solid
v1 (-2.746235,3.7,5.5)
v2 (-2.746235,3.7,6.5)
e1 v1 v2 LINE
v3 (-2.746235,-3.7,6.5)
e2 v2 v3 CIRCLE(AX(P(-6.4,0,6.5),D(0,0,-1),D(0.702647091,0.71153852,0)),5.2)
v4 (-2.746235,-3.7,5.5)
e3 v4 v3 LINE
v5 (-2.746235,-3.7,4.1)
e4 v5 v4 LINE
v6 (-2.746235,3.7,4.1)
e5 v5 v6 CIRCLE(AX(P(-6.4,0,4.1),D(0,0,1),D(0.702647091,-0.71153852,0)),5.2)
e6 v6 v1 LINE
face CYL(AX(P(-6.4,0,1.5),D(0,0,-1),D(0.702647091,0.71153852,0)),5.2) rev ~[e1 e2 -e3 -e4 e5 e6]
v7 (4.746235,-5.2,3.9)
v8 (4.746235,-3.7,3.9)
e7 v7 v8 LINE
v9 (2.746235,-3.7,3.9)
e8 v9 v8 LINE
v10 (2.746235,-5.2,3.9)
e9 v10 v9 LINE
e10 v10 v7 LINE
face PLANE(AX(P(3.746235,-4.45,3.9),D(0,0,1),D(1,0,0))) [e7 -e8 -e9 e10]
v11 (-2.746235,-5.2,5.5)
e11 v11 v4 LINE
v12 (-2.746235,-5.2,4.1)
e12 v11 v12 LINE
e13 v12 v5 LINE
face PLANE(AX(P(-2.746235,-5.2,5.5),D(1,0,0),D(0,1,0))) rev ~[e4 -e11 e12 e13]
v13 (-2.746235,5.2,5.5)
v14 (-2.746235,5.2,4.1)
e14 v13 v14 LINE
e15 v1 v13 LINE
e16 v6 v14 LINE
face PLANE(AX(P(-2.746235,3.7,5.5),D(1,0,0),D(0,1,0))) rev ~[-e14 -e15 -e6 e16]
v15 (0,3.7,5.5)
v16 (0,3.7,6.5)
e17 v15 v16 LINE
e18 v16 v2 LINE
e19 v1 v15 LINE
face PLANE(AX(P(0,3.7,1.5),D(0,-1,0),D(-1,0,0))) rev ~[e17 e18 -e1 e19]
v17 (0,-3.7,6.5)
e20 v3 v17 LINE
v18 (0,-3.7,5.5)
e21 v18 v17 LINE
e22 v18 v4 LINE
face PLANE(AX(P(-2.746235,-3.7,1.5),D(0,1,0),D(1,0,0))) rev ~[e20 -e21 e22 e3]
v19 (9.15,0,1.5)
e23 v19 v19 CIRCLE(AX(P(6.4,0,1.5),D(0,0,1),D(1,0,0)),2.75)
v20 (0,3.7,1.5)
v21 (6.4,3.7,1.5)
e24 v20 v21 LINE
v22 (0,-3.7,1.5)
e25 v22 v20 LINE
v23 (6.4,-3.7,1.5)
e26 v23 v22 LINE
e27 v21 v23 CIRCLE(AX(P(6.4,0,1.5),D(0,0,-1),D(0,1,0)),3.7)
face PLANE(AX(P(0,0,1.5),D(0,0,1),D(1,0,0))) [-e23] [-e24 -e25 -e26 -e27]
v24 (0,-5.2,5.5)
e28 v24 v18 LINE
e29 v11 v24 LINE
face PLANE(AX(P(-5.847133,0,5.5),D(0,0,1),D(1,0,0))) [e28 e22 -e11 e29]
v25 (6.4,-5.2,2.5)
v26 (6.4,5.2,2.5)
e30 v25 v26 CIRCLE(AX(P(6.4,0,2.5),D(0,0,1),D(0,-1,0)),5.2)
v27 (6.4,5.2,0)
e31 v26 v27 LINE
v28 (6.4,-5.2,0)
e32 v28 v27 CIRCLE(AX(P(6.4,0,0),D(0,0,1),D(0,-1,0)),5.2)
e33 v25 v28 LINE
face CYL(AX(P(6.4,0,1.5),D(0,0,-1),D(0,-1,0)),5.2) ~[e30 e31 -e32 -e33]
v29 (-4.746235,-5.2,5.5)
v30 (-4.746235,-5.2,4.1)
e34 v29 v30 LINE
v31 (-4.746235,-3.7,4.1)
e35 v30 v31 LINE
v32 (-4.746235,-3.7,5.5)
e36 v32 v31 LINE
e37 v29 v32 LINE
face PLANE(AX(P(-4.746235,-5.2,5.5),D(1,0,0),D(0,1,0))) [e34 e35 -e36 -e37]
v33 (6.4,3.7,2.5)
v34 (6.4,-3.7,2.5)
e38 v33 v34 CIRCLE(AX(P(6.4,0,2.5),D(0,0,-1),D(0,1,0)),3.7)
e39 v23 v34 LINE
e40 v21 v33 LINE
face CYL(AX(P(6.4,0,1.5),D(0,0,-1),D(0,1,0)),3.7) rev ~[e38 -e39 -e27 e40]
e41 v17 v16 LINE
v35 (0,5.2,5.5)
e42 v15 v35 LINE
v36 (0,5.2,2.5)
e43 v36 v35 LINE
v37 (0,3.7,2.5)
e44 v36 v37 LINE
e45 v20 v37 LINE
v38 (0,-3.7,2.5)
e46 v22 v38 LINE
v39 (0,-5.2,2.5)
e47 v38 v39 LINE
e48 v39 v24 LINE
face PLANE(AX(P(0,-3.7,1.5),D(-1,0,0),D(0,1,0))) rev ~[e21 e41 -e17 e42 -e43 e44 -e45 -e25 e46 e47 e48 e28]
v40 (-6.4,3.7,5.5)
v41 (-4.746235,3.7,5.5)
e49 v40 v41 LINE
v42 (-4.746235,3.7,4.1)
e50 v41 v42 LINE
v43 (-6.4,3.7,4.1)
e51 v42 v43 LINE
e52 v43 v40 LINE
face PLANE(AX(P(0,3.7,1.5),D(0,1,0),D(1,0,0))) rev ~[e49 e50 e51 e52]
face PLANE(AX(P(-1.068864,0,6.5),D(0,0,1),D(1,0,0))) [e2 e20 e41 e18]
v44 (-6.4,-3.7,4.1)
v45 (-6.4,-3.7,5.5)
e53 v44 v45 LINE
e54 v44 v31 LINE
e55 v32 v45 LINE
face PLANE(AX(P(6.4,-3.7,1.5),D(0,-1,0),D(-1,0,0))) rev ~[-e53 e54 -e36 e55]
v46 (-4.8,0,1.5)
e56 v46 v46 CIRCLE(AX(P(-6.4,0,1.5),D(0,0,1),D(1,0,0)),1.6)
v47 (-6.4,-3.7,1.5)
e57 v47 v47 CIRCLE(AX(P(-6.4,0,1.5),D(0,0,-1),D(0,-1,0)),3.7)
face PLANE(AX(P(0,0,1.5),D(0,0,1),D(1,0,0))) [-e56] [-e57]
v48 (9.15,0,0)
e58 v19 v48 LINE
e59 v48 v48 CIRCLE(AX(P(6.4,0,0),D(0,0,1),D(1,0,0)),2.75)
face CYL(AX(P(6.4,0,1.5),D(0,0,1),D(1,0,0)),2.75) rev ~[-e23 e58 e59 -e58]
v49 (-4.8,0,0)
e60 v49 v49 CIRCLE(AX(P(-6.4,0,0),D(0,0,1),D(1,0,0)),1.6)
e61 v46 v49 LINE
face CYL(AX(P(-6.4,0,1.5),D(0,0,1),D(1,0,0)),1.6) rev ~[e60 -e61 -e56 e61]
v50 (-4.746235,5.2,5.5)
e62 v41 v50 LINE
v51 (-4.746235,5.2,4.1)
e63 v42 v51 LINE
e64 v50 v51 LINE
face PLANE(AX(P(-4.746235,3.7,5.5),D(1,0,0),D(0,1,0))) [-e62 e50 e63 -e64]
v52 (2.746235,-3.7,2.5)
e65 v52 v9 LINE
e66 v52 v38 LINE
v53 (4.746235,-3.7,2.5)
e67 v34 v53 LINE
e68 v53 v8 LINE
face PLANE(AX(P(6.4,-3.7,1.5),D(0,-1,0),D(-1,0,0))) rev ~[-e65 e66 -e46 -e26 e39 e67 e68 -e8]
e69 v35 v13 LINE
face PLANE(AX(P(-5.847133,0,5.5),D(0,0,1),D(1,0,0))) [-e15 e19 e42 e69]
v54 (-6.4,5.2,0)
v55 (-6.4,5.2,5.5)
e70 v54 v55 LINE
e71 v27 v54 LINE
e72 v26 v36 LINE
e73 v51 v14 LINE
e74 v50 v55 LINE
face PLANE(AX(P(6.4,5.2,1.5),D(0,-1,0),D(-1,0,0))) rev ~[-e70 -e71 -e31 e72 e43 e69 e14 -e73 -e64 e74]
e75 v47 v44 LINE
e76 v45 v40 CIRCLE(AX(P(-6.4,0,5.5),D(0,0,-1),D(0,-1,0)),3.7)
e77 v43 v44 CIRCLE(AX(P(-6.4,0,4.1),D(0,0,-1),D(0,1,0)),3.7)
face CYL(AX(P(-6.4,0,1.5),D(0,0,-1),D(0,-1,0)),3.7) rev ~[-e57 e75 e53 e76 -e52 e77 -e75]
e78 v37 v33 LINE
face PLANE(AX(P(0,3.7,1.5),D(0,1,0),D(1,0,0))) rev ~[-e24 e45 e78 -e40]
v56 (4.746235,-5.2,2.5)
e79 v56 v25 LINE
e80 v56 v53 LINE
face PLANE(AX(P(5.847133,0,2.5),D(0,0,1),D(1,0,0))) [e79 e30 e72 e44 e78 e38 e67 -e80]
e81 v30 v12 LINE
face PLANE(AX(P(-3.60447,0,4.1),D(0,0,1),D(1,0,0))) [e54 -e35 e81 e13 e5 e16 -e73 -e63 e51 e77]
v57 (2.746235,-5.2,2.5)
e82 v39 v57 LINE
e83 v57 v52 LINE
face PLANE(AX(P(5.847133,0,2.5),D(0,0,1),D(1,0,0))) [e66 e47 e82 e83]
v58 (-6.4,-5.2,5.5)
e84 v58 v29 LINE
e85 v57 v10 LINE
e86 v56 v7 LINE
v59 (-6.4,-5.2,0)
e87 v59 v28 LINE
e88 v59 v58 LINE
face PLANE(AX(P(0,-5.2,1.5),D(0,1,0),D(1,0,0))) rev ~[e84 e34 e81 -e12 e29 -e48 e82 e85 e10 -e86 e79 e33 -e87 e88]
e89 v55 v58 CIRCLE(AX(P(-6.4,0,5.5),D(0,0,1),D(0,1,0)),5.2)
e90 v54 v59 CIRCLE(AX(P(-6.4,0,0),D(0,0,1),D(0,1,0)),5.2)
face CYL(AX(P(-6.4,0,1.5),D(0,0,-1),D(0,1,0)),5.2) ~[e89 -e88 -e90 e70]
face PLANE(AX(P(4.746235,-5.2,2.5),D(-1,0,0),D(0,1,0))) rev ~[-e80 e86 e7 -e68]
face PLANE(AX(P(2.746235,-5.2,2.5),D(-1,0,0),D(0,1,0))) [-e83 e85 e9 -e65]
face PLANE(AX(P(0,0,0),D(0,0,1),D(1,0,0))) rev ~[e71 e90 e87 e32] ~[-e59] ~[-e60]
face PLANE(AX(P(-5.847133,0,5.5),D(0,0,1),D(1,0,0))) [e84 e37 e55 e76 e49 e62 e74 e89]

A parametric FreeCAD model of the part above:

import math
import FreeCAD as App
import Part
import Sketcher

V = App.Vector
Q = App.Units.Quantity

doc = App.newDocument("Part")
body = doc.addObject("PartDesign::Body", "Body")

# Sketch on XY plane
sketch1 = body.newObject("Sketcher::SketchObject", "Sketch")
sketch1.AttachmentSupport = (doc.getObject("XY_Plane"), [""])
sketch1.MapMode = "FlatFace"
sketch1.addGeometry(Part.LineSegment(V(6, 5, 0), V(-6, 5, 0)), False)
sketch1.addGeometry(Part.ArcOfCircle(Part.Circle(V(-6, 0, 0), V(0, 0, 1), 5), math.radians(90), math.radians(270)), False)
sketch1.addGeometry(Part.LineSegment(V(-6, -5, 0), V(6, -5, 0)), False)
sketch1.addGeometry(Part.ArcOfCircle(Part.Circle(V(6, 0, 0), V(0, 0, 1), 5), math.radians(-90), math.radians(90)), False)
sketch1.addConstraint(Sketcher.Constraint("Tangent", 0, 2, 1, 1))
sketch1.addConstraint(Sketcher.Constraint("Tangent", 1, 2, 2, 1))
sketch1.addConstraint(Sketcher.Constraint("Tangent", 2, 2, 3, 1))
sketch1.addConstraint(Sketcher.Constraint("Tangent", 3, 2, 0, 1))
sketch1.addConstraint(Sketcher.Constraint("Horizontal", 0))
sketch1.addConstraint(Sketcher.Constraint("Horizontal", 2))
sketch1.addConstraint(Sketcher.Constraint("Symmetric", 1, 3, 3, 3, -1, 1))
sketch1.addConstraint(Sketcher.Constraint("Radius", 1, Q("5.2 mm")))
sketch1.addConstraint(Sketcher.Constraint("DistanceX", 0, 2, 0, 1, Q("12.8 mm")))
pad1 = body.newObject("PartDesign::Pad", "Pad")
pad1.Profile = sketch1
pad1.Length = 1.5

# Sketch on XY plane
sketch2 = body.newObject("Sketcher::SketchObject", "Sketch001")
sketch2.AttachmentSupport = (doc.getObject("XY_Plane"), [""])
sketch2.MapMode = "FlatFace"
sketch2.AttachmentOffset = App.Placement(V(0, 0, 1.5), App.Rotation())
sketch2.addGeometry(Part.LineSegment(V(0, 5.2, 0), V(-6.4, 5.2, 0)), False)
sketch2.addGeometry(Part.ArcOfCircle(Part.Circle(V(-6.4, 0, 0), V(0, 0, 1), 5.2), math.radians(90), math.radians(270)), False)
sketch2.addGeometry(Part.LineSegment(V(-6.4, -5.2, 0), V(0, -5.2, 0)), False)
sketch2.addGeometry(Part.LineSegment(V(0, -5.2, 0), V(0, -3.7, 0)), False)
sketch2.addGeometry(Part.LineSegment(V(0, -3.7, 0), V(-6.4, -3.7, 0)), False)
sketch2.addGeometry(Part.ArcOfCircle(Part.Circle(V(-6.4, 0, 0), V(0, 0, 1), 3.7), math.radians(90), math.radians(270)), False)
sketch2.addGeometry(Part.LineSegment(V(-6.4, 3.7, 0), V(0, 3.7, 0)), False)
sketch2.addGeometry(Part.LineSegment(V(0, 3.7, 0), V(0, 5.2, 0)), False)
sketch2.addConstraint(Sketcher.Constraint("Tangent", 0, 2, 1, 1))
sketch2.addConstraint(Sketcher.Constraint("Tangent", 1, 2, 2, 1))
sketch2.addConstraint(Sketcher.Constraint("Coincident", 2, 2, 3, 1))
sketch2.addConstraint(Sketcher.Constraint("Coincident", 3, 2, 4, 1))
sketch2.addConstraint(Sketcher.Constraint("Tangent", 4, 2, 5, 2))
sketch2.addConstraint(Sketcher.Constraint("Tangent", 5, 1, 6, 1))
sketch2.addConstraint(Sketcher.Constraint("Coincident", 6, 2, 7, 1))
sketch2.addConstraint(Sketcher.Constraint("Coincident", 7, 2, 0, 1))
sketch2.addConstraint(Sketcher.Constraint("Horizontal", 0))
sketch2.addConstraint(Sketcher.Constraint("Horizontal", 2))
sketch2.addConstraint(Sketcher.Constraint("Vertical", 3))
sketch2.addConstraint(Sketcher.Constraint("Horizontal", 4))
sketch2.addConstraint(Sketcher.Constraint("Horizontal", 6))
sketch2.addConstraint(Sketcher.Constraint("Vertical", 7))
sketch2.addConstraint(Sketcher.Constraint("Coincident", 5, 3, 1, 3))
sketch2.addConstraint(Sketcher.Constraint("Symmetric", 3, 2, 6, 2, -1, 1))
sketch2.addConstraint(Sketcher.Constraint("PointOnObject", 2, 2, -2))
sketch2.addConstraint(Sketcher.Constraint("Radius", 1, Q("5.2 mm")))
sketch2.addConstraint(Sketcher.Constraint("Radius", 5, Q("3.7 mm")))
sketch2.addConstraint(Sketcher.Constraint("DistanceX", 0, 2, 0, 1, Q("6.4 mm")))
pad2 = body.newObject("PartDesign::Pad", "Pad001")
pad2.Profile = sketch2
pad2.Length = 4

# Sketch on XY plane
sketch3 = body.newObject("Sketcher::SketchObject", "Sketch002")
sketch3.AttachmentSupport = (doc.getObject("XY_Plane"), [""])
sketch3.MapMode = "FlatFace"
sketch3.AttachmentOffset = App.Placement(V(0, 0, 1.5), App.Rotation())
sketch3.addGeometry(Part.LineSegment(V(6.4, 5.2, 0), V(0, 5.2, 0)), False)
sketch3.addGeometry(Part.LineSegment(V(0, 5.2, 0), V(0, 3.7, 0)), False)
sketch3.addGeometry(Part.LineSegment(V(0, 3.7, 0), V(6.4, 3.7, 0)), False)
sketch3.addGeometry(Part.ArcOfCircle(Part.Circle(V(6.4, 0, 0), V(0, 0, 1), 3.7), math.radians(-90), math.radians(90)), False)
sketch3.addGeometry(Part.LineSegment(V(6.4, -3.7, 0), V(0, -3.7, 0)), False)
sketch3.addGeometry(Part.LineSegment(V(0, -3.7, 0), V(0, -5.2, 0)), False)
sketch3.addGeometry(Part.LineSegment(V(0, -5.2, 0), V(6.4, -5.2, 0)), False)
sketch3.addGeometry(Part.ArcOfCircle(Part.Circle(V(6.4, 0, 0), V(0, 0, 1), 5.2), math.radians(-90), math.radians(90)), False)
sketch3.addConstraint(Sketcher.Constraint("Coincident", 0, 2, 1, 1))
sketch3.addConstraint(Sketcher.Constraint("Coincident", 1, 2, 2, 1))
sketch3.addConstraint(Sketcher.Constraint("Tangent", 2, 2, 3, 2))
sketch3.addConstraint(Sketcher.Constraint("Tangent", 3, 1, 4, 1))
sketch3.addConstraint(Sketcher.Constraint("Coincident", 4, 2, 5, 1))
sketch3.addConstraint(Sketcher.Constraint("Coincident", 5, 2, 6, 1))
sketch3.addConstraint(Sketcher.Constraint("Tangent", 6, 2, 7, 1))
sketch3.addConstraint(Sketcher.Constraint("Tangent", 7, 2, 0, 1))
sketch3.addConstraint(Sketcher.Constraint("Horizontal", 0))
sketch3.addConstraint(Sketcher.Constraint("Vertical", 1))
sketch3.addConstraint(Sketcher.Constraint("Horizontal", 2))
sketch3.addConstraint(Sketcher.Constraint("Horizontal", 4))
sketch3.addConstraint(Sketcher.Constraint("Vertical", 5))
sketch3.addConstraint(Sketcher.Constraint("Horizontal", 6))
sketch3.addConstraint(Sketcher.Constraint("Coincident", 7, 3, 3, 3))
sketch3.addConstraint(Sketcher.Constraint("Symmetric", 1, 2, 4, 2, -1, 1))
sketch3.addConstraint(Sketcher.Constraint("PointOnObject", 0, 2, -2))
sketch3.addConstraint(Sketcher.Constraint("Radius", 3, Q("3.7 mm")))
sketch3.addConstraint(Sketcher.Constraint("Radius", 7, Q("5.2 mm")))
sketch3.addConstraint(Sketcher.Constraint("DistanceX", 0, 2, 0, 1, Q("6.4 mm")))
pad3 = body.newObject("PartDesign::Pad", "Pad002")
pad3.Profile = sketch3
pad3.Length = 1

# Sketch on XY plane
sketch4 = body.newObject("Sketcher::SketchObject", "Sketch003")
sketch4.AttachmentSupport = (doc.getObject("XY_Plane"), [""])
sketch4.MapMode = "FlatFace"
sketch4.AttachmentOffset = App.Placement(V(0, 0, 1.5), App.Rotation())
sketch4.addGeometry(Part.LineSegment(V(-6.4, -3.7, 0), V(-2.7, -3.7, 0)), False)
sketch4.addGeometry(Part.ArcOfCircle(Part.Circle(V(-6.4, 0, 0), V(0, 0, 1), 5.2), math.radians(-45), math.radians(45)), False)
sketch4.addGeometry(Part.LineSegment(V(-2.7, 3.7, 0), V(-6.4, 3.7, 0)), False)
sketch4.addGeometry(Part.ArcOfCircle(Part.Circle(V(-6.4, 0, 0), V(0, 0, 1), 3.7), math.radians(-90), math.radians(90)), False)
sketch4.addConstraint(Sketcher.Constraint("Coincident", 0, 2, 1, 1))
sketch4.addConstraint(Sketcher.Constraint("Coincident", 1, 2, 2, 1))
sketch4.addConstraint(Sketcher.Constraint("Tangent", 2, 2, 3, 2))
sketch4.addConstraint(Sketcher.Constraint("Tangent", 3, 1, 0, 1))
sketch4.addConstraint(Sketcher.Constraint("Horizontal", 0))
sketch4.addConstraint(Sketcher.Constraint("Horizontal", 2))
sketch4.addConstraint(Sketcher.Constraint("Coincident", 3, 3, 1, 3))
sketch4.addConstraint(Sketcher.Constraint("PointOnObject", 1, 3, -1))
sketch4.addConstraint(Sketcher.Constraint("Radius", 1, Q("5.2 mm")))
sketch4.addConstraint(Sketcher.Constraint("Radius", 3, Q("3.7 mm")))
sketch4.addConstraint(Sketcher.Constraint("DistanceX", 1, 3, -1, 1, Q("6.4 mm")))
pad4 = body.newObject("PartDesign::Pad", "Pad003")
pad4.Profile = sketch4
pad4.Length = 2.6

# Sketch on XY plane
sketch5 = body.newObject("Sketcher::SketchObject", "Sketch004")
sketch5.AttachmentSupport = (doc.getObject("XY_Plane"), [""])
sketch5.MapMode = "FlatFace"
sketch5.AttachmentOffset = App.Placement(V(0, 0, 1.5), App.Rotation())
sketch5.addGeometry(Part.Circle(V(-6.4, 0, 0), V(0, 0, 1), 1.6), False)
sketch5.addGeometry(Part.Circle(V(6.4, 0, 0), V(0, 0, 1), 2.8), False)
sketch5.addConstraint(Sketcher.Constraint("Symmetric", 0, 3, 1, 3, -1, 1))
sketch5.addConstraint(Sketcher.Constraint("PointOnObject", 0, 3, -1))
sketch5.addConstraint(Sketcher.Constraint("Diameter", 0, Q("3.2 mm")))
sketch5.addConstraint(Sketcher.Constraint("Diameter", 1, Q("5.5 mm")))
sketch5.addConstraint(Sketcher.Constraint("DistanceX", 0, 3, -1, 1, Q("6.4 mm")))
pocket1 = body.newObject("PartDesign::Pocket", "Pocket")
pocket1.Profile = sketch5
pocket1.Type = "ThroughAll"

# Sketch on XY plane
sketch6 = body.newObject("Sketcher::SketchObject", "Sketch005")
sketch6.AttachmentSupport = (doc.getObject("XY_Plane"), [""])
sketch6.MapMode = "FlatFace"
sketch6.AttachmentOffset = App.Placement(V(0, 0, 1.5), App.Rotation())
sketch6.addGeometry(Part.LineSegment(V(-2.7, -3.7, 0), V(0, -3.7, 0)), False)
sketch6.addGeometry(Part.LineSegment(V(0, -3.7, 0), V(0, 3.7, 0)), False)
sketch6.addGeometry(Part.LineSegment(V(0, 3.7, 0), V(-2.7, 3.7, 0)), False)
sketch6.addGeometry(Part.ArcOfCircle(Part.Circle(V(-6.4, 0, 0), V(0, 0, 1), 5.2), math.radians(-45), math.radians(45)), False)
sketch6.addConstraint(Sketcher.Constraint("Coincident", 0, 2, 1, 1))
sketch6.addConstraint(Sketcher.Constraint("Coincident", 1, 2, 2, 1))
sketch6.addConstraint(Sketcher.Constraint("Coincident", 2, 2, 3, 2))
sketch6.addConstraint(Sketcher.Constraint("Coincident", 3, 1, 0, 1))
sketch6.addConstraint(Sketcher.Constraint("Horizontal", 0))
sketch6.addConstraint(Sketcher.Constraint("Vertical", 1))
sketch6.addConstraint(Sketcher.Constraint("Horizontal", 2))
sketch6.addConstraint(Sketcher.Constraint("Symmetric", 0, 2, 1, 2, -1, 1))
sketch6.addConstraint(Sketcher.Constraint("PointOnObject", 3, 3, -1))
sketch6.addConstraint(Sketcher.Constraint("Radius", 3, Q("5.2 mm")))
sketch6.addConstraint(Sketcher.Constraint("DistanceY", 1, 1, 1, 2, Q("7.4 mm")))
sketch6.addConstraint(Sketcher.Constraint("DistanceX", 3, 3, -1, 1, Q("6.4 mm")))
pad5 = body.newObject("PartDesign::Pad", "Pad004")
pad5.Profile = sketch6
pad5.Length = 5

# Sketch on XY plane
sketch7 = body.newObject("Sketcher::SketchObject", "Sketch006")
sketch7.AttachmentSupport = (doc.getObject("XY_Plane"), [""])
sketch7.MapMode = "FlatFace"
sketch7.AttachmentOffset = App.Placement(V(0, 0, 5.5), App.Rotation())
sketch7.addGeometry(Part.LineSegment(V(-4.7, -3.7, 0), V(-4.7, -5.2, 0)), False)
sketch7.addGeometry(Part.LineSegment(V(-4.7, -5.2, 0), V(-2.7, -5.2, 0)), False)
sketch7.addGeometry(Part.LineSegment(V(-2.7, -5.2, 0), V(-2.7, -3.7, 0)), False)
sketch7.addGeometry(Part.LineSegment(V(-2.7, -3.7, 0), V(-4.7, -3.7, 0)), False)
sketch7.addGeometry(Part.LineSegment(V(-4.7, 5.2, 0), V(-4.7, 3.7, 0)), False)
sketch7.addGeometry(Part.LineSegment(V(-4.7, 3.7, 0), V(-2.7, 3.7, 0)), False)
sketch7.addGeometry(Part.LineSegment(V(-2.7, 3.7, 0), V(-2.7, 5.2, 0)), False)
sketch7.addGeometry(Part.LineSegment(V(-2.7, 5.2, 0), V(-4.7, 5.2, 0)), False)
sketch7.addConstraint(Sketcher.Constraint("Coincident", 0, 2, 1, 1))
sketch7.addConstraint(Sketcher.Constraint("Coincident", 1, 2, 2, 1))
sketch7.addConstraint(Sketcher.Constraint("Coincident", 2, 2, 3, 1))
sketch7.addConstraint(Sketcher.Constraint("Coincident", 3, 2, 0, 1))
sketch7.addConstraint(Sketcher.Constraint("Coincident", 4, 2, 5, 1))
sketch7.addConstraint(Sketcher.Constraint("Coincident", 5, 2, 6, 1))
sketch7.addConstraint(Sketcher.Constraint("Coincident", 6, 2, 7, 1))
sketch7.addConstraint(Sketcher.Constraint("Coincident", 7, 2, 4, 1))
sketch7.addConstraint(Sketcher.Constraint("Vertical", 0))
sketch7.addConstraint(Sketcher.Constraint("Horizontal", 1))
sketch7.addConstraint(Sketcher.Constraint("Vertical", 2))
sketch7.addConstraint(Sketcher.Constraint("Horizontal", 3))
sketch7.addConstraint(Sketcher.Constraint("Vertical", 4))
sketch7.addConstraint(Sketcher.Constraint("Horizontal", 5))
sketch7.addConstraint(Sketcher.Constraint("Vertical", 6))
sketch7.addConstraint(Sketcher.Constraint("Horizontal", 7))
sketch7.addConstraint(Sketcher.Constraint("Symmetric", 3, 2, 4, 2, -1))
sketch7.addConstraint(Sketcher.Constraint("Symmetric", 1, 2, 6, 2, -1))
sketch7.addConstraint(Sketcher.Constraint("DistanceX", 1, 1, 1, 2, Q("2 mm")))
sketch7.addConstraint(Sketcher.Constraint("DistanceY", 0, 2, 0, 1, Q("1.5 mm")))
sketch7.addConstraint(Sketcher.Constraint("DistanceY", 0, 2, -1, 1, Q("5.2 mm")))
sketch7.addConstraint(Sketcher.Constraint("DistanceX", 0, 2, -1, 1, Q("4.746235 mm")))
pocket2 = body.newObject("PartDesign::Pocket", "Pocket001")
pocket2.Profile = sketch7
pocket2.Length = 1.4

# Sketch on XY plane
sketch8 = body.newObject("Sketcher::SketchObject", "Sketch007")
sketch8.AttachmentSupport = (doc.getObject("XY_Plane"), [""])
sketch8.MapMode = "FlatFace"
sketch8.AttachmentOffset = App.Placement(V(0, 0, 2.5), App.Rotation())
sketch8.addGeometry(Part.LineSegment(V(2.7, -3.7, 0), V(2.7, -5.2, 0)), False)
sketch8.addGeometry(Part.LineSegment(V(2.7, -5.2, 0), V(4.7, -5.2, 0)), False)
sketch8.addGeometry(Part.LineSegment(V(4.7, -5.2, 0), V(4.7, -3.7, 0)), False)
sketch8.addGeometry(Part.LineSegment(V(4.7, -3.7, 0), V(2.7, -3.7, 0)), False)
sketch8.addConstraint(Sketcher.Constraint("Coincident", 0, 2, 1, 1))
sketch8.addConstraint(Sketcher.Constraint("Coincident", 1, 2, 2, 1))
sketch8.addConstraint(Sketcher.Constraint("Coincident", 2, 2, 3, 1))
sketch8.addConstraint(Sketcher.Constraint("Coincident", 3, 2, 0, 1))
sketch8.addConstraint(Sketcher.Constraint("Vertical", 0))
sketch8.addConstraint(Sketcher.Constraint("Horizontal", 1))
sketch8.addConstraint(Sketcher.Constraint("Vertical", 2))
sketch8.addConstraint(Sketcher.Constraint("Horizontal", 3))
sketch8.addConstraint(Sketcher.Constraint("DistanceX", 1, 1, 1, 2, Q("2 mm")))
sketch8.addConstraint(Sketcher.Constraint("DistanceY", 0, 2, 0, 1, Q("1.5 mm")))
sketch8.addConstraint(Sketcher.Constraint("DistanceY", 0, 2, -1, 1, Q("5.2 mm")))
sketch8.addConstraint(Sketcher.Constraint("DistanceX", -1, 1, 0, 2, Q("2.746235 mm")))
pad6 = body.newObject("PartDesign::Pad", "Pad005")
pad6.Profile = sketch8
pad6.Length = 1.4

doc.recompute()
